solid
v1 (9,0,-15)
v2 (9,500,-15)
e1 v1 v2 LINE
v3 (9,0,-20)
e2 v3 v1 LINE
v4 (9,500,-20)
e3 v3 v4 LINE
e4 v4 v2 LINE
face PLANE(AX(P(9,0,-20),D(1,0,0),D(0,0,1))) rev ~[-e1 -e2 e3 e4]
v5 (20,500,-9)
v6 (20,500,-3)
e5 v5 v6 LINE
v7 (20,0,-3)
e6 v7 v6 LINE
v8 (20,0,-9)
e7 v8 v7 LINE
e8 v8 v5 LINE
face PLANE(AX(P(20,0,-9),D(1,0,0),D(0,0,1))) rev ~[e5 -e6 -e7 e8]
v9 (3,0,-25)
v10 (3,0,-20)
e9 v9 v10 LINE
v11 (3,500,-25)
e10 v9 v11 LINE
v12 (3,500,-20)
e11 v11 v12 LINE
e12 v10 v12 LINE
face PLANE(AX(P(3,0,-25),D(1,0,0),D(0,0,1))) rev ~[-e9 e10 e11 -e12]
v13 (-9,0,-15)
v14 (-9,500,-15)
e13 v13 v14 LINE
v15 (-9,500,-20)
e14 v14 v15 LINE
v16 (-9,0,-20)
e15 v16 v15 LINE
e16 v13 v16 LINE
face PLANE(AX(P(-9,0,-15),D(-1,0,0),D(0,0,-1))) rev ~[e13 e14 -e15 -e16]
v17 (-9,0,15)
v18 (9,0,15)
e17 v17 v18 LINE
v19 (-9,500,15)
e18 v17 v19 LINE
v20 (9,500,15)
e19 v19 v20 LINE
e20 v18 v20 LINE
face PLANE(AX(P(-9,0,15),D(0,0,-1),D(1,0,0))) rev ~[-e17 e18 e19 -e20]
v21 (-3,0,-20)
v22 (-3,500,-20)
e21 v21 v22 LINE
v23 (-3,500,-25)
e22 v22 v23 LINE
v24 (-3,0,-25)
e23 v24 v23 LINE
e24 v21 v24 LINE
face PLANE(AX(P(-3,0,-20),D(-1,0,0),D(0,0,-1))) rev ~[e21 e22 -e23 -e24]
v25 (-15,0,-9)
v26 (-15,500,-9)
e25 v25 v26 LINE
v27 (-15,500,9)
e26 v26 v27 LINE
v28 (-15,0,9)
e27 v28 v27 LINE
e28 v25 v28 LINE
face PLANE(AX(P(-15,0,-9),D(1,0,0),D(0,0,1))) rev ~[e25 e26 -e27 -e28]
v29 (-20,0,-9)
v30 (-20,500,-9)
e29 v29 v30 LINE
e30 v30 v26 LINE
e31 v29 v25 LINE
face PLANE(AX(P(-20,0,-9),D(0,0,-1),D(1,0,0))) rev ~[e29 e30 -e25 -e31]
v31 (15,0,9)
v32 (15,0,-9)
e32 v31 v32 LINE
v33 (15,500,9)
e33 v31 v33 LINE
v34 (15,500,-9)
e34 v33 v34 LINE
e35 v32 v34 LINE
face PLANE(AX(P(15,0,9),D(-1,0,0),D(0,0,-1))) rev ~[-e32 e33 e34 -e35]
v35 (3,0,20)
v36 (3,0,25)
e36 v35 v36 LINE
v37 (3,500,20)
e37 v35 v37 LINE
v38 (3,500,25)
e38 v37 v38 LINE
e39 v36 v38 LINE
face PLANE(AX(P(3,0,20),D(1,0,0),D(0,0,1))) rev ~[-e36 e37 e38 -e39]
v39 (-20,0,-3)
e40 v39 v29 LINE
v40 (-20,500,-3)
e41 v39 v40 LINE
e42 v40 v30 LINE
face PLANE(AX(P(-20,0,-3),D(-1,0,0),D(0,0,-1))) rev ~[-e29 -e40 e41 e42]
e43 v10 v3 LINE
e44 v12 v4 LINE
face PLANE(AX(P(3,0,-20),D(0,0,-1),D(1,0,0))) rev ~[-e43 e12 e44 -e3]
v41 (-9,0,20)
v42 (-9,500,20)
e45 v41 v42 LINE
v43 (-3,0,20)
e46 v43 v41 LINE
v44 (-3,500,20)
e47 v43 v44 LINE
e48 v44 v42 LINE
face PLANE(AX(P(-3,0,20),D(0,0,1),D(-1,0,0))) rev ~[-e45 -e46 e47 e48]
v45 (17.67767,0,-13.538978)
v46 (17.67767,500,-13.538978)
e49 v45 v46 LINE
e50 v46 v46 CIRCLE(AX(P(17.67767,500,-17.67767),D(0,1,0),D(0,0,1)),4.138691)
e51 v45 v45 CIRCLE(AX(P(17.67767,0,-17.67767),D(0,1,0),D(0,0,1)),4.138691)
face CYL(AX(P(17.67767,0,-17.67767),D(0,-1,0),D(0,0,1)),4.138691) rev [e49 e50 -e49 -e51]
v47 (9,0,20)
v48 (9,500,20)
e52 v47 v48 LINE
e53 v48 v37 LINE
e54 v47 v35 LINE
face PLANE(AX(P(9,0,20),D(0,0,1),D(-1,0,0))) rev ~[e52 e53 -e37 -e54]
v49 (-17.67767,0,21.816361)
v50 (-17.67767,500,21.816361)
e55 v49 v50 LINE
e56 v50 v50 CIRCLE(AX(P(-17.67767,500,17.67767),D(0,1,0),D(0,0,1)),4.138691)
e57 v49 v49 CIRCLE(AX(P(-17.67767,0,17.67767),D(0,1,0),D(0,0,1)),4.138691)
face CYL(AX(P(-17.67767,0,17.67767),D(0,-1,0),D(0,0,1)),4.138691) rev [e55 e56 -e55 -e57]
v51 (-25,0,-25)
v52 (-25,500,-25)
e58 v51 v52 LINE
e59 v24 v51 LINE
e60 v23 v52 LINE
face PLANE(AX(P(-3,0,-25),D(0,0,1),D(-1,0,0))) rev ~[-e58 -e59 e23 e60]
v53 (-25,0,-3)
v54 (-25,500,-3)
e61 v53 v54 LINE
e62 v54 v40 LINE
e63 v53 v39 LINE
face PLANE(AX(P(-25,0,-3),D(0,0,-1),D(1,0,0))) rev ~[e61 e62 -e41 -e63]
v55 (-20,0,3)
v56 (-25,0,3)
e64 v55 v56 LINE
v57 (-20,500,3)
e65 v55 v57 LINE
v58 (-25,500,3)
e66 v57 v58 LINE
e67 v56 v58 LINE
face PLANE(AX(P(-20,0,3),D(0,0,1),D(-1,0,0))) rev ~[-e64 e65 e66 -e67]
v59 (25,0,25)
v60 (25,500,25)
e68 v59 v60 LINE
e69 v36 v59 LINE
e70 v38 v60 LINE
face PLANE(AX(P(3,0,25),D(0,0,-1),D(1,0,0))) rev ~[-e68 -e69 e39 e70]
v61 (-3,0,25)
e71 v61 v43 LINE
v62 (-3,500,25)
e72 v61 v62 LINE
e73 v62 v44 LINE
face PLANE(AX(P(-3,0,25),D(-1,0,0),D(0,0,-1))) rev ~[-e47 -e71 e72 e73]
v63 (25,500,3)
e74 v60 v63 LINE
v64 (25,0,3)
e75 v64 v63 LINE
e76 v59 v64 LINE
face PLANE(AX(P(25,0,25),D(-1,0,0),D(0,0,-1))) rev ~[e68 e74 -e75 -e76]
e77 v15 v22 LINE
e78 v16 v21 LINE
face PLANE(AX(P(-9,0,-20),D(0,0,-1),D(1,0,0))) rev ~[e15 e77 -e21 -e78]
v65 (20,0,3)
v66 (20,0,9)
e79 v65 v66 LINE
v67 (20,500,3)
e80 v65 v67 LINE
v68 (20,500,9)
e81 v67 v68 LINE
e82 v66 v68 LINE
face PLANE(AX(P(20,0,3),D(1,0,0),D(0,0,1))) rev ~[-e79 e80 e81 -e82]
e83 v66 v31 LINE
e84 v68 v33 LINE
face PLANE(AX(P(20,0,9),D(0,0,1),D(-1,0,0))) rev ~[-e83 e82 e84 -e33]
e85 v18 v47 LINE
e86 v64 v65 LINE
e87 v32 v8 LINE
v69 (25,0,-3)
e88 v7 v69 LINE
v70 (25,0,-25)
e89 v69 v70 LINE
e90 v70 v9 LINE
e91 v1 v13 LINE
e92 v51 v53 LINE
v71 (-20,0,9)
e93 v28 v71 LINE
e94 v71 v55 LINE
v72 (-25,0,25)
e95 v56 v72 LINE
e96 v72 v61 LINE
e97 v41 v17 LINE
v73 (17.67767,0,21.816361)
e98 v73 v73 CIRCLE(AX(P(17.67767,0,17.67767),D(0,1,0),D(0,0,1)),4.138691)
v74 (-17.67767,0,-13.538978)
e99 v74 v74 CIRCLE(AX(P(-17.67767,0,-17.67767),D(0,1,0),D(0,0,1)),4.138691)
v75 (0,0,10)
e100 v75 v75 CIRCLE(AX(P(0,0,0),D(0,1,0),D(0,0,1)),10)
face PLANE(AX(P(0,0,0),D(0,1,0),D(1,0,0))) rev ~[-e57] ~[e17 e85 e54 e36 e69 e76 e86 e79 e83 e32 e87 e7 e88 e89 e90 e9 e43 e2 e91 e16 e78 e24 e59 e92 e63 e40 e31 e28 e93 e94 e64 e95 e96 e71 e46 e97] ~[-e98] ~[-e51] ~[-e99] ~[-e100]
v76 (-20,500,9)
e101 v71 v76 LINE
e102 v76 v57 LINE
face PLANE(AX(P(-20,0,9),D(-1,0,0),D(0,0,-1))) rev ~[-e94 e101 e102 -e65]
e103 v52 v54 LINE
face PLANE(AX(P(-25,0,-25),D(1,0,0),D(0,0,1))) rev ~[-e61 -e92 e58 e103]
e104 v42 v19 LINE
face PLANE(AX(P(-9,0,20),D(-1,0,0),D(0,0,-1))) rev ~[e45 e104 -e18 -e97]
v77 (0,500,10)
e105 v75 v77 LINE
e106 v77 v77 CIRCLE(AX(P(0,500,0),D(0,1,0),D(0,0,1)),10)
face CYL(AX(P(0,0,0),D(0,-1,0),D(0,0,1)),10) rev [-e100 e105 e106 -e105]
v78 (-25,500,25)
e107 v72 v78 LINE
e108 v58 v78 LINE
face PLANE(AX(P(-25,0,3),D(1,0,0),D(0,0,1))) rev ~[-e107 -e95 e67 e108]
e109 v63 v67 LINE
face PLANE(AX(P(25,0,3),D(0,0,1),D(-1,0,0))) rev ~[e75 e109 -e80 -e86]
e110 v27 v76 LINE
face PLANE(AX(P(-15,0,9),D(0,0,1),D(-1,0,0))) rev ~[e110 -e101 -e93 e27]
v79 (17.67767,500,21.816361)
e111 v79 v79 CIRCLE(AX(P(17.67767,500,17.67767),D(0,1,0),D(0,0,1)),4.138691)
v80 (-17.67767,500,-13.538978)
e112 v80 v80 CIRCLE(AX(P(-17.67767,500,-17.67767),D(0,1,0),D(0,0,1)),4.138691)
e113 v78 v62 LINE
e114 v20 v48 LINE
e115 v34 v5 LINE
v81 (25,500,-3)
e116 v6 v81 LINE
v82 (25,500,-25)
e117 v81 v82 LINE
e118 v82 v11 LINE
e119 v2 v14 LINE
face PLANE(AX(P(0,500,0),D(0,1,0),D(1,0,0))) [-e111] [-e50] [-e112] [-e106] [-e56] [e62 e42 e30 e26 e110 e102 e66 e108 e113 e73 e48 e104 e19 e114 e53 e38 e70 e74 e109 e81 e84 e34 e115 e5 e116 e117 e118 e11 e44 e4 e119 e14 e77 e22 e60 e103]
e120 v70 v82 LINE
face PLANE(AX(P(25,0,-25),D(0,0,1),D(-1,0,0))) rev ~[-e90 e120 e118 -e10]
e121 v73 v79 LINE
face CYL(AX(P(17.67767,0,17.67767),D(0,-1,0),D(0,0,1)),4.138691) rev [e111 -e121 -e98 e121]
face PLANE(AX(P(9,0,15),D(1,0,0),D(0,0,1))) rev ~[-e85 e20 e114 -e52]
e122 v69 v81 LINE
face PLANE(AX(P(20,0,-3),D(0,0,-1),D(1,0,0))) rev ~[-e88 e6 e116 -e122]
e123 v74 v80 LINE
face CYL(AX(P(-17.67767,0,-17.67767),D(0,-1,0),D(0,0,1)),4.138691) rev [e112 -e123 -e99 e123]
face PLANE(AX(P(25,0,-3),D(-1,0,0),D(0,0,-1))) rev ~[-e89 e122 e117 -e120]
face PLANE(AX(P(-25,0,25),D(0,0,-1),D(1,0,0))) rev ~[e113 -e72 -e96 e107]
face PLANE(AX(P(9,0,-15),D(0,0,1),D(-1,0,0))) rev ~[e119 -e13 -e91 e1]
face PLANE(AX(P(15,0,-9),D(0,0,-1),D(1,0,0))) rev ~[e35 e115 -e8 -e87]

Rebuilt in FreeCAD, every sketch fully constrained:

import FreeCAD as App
import Part
import Sketcher
Q = App.Units.Quantity

doc = App.newDocument("Part")
body = doc.addObject("PartDesign::Body", "Body")

# Sketch on XZ plane
sketch1 = doc.addObject("Sketcher::SketchObject", "Sketch")
body.addObject(sketch1)
sketch1.AttachmentSupport = (doc.XZ_Plane, [""])
sketch1.MapMode = "FlatFace"
sketch1.addGeometry(Part.LineSegment(App.Vector(-25, 3, 0), App.Vector(-25, 25, 0)), False)
sketch1.addGeometry(Part.LineSegment(App.Vector(-25, 25, 0), App.Vector(-3, 25, 0)), False)
sketch1.addGeometry(Part.LineSegment(App.Vector(-3, 25, 0), App.Vector(-3, 20, 0)), False)
sketch1.addGeometry(Part.LineSegment(App.Vector(-3, 20, 0), App.Vector(-9, 20, 0)), False)
sketch1.addGeometry(Part.LineSegment(App.Vector(-9, 20, 0), App.Vector(-9, 15, 0)), False)
sketch1.addGeometry(Part.LineSegment(App.Vector(-9, 15, 0), App.Vector(9, 15, 0)), False)
sketch1.addGeometry(Part.LineSegment(App.Vector(9, 15, 0), App.Vector(9, 20, 0)), False)
sketch1.addGeometry(Part.LineSegment(App.Vector(9, 20, 0), App.Vector(3, 20, 0)), False)
sketch1.addGeometry(Part.LineSegment(App.Vector(3, 20, 0), App.Vector(3, 25, 0)), False)
sketch1.addGeometry(Part.LineSegment(App.Vector(3, 25, 0), App.Vector(25, 25, 0)), False)
sketch1.addGeometry(Part.LineSegment(App.Vector(25, 25, 0), App.Vector(25, 3, 0)), False)
sketch1.addGeometry(Part.LineSegment(App.Vector(25, 3, 0), App.Vector(20, 3, 0)), False)
sketch1.addGeometry(Part.LineSegment(App.Vector(20, 3, 0), App.Vector(20, 9, 0)), False)
sketch1.addGeometry(Part.LineSegment(App.Vector(20, 9, 0), App.Vector(15, 9, 0)), False)
sketch1.addGeometry(Part.LineSegment(App.Vector(15, 9, 0), App.Vector(15, -9, 0)), False)
sketch1.addGeometry(Part.LineSegment(App.Vector(15, -9, 0), App.Vector(20, -9, 0)), False)
sketch1.addGeometry(Part.LineSegment(App.Vector(20, -9, 0), App.Vector(20, -3, 0)), False)
sketch1.addGeometry(Part.LineSegment(App.Vector(20, -3, 0), App.Vector(25, -3, 0)), False)
sketch1.addGeometry(Part.LineSegment(App.Vector(25, -3, 0), App.Vector(25, -25, 0)), False)
sketch1.addGeometry(Part.LineSegment(App.Vector(25, -25, 0), App.Vector(3, -25, 0)), False)
sketch1.addGeometry(Part.LineSegment(App.Vector(3, -25, 0), App.Vector(3, -20, 0)), False)
sketch1.addGeometry(Part.LineSegment(App.Vector(3, -20, 0), App.Vector(9, -20, 0)), False)
sketch1.addGeometry(Part.LineSegment(App.Vector(9, -20, 0), App.Vector(9, -15, 0)), False)
sketch1.addGeometry(Part.LineSegment(App.Vector(9, -15, 0), App.Vector(-9, -15, 0)), False)
sketch1.addGeometry(Part.LineSegment(App.Vector(-9, -15, 0), App.Vector(-9, -20, 0)), False)
sketch1.addGeometry(Part.LineSegment(App.Vector(-9, -20, 0), App.Vector(-3, -20, 0)), False)
sketch1.addGeometry(Part.LineSegment(App.Vector(-3, -20, 0), App.Vector(-3, -25, 0)), False)
sketch1.addGeometry(Part.LineSegment(App.Vector(-3, -25, 0), App.Vector(-25, -25, 0)), False)
sketch1.addGeometry(Part.LineSegment(App.Vector(-25, -25, 0), App.Vector(-25, -3, 0)), False)
sketch1.addGeometry(Part.LineSegment(App.Vector(-25, -3, 0), App.Vector(-20, -3, 0)), False)
sketch1.addGeometry(Part.LineSegment(App.Vector(-20, -3, 0), App.Vector(-20, -9, 0)), False)
sketch1.addGeometry(Part.LineSegment(App.Vector(-20, -9, 0), App.Vector(-15, -9, 0)), False)
sketch1.addGeometry(Part.LineSegment(App.Vector(-15, -9, 0), App.Vector(-15, 9, 0)), False)
sketch1.addGeometry(Part.LineSegment(App.Vector(-15, 9, 0), App.Vector(-20, 9, 0)), False)
sketch1.addGeometry(Part.LineSegment(App.Vector(-20, 9, 0), App.Vector(-20, 3, 0)), False)
sketch1.addGeometry(Part.LineSegment(App.Vector(-20, 3, 0), App.Vector(-25, 3, 0)), False)
sketch1.addGeometry(Part.Circle(App.Vector(-17.7, 17.7, 0), App.Vector(0, 0, 1), 4.1), False)
sketch1.addGeometry(Part.Circle(App.Vector(17.7, 17.7, 0), App.Vector(0, 0, 1), 4.1), False)
sketch1.addGeometry(Part.Circle(App.Vector(-17.7, -17.7, 0), App.Vector(0, 0, 1), 4.1), False)
sketch1.addGeometry(Part.Circle(App.Vector(0, 0, 0), App.Vector(0, 0, 1), 10), False)
sketch1.addGeometry(Part.Circle(App.Vector(17.7, -17.7, 0), App.Vector(0, 0, 1), 4.1), False)
sketch1.addConstraint(Sketcher.Constraint("Coincident", 0, 2, 1, 1))
sketch1.addConstraint(Sketcher.Constraint("Coincident", 1, 2, 2, 1))
sketch1.addConstraint(Sketcher.Constraint("Coincident", 2, 2, 3, 1))
sketch1.addConstraint(Sketcher.Constraint("Coincident", 3, 2, 4, 1))
sketch1.addConstraint(Sketcher.Constraint("Coincident", 4, 2, 5, 1))
sketch1.addConstraint(Sketcher.Constraint("Coincident", 5, 2, 6, 1))
sketch1.addConstraint(Sketcher.Constraint("Coincident", 6, 2, 7, 1))
sketch1.addConstraint(Sketcher.Constraint("Coincident", 7, 2, 8, 1))
sketch1.addConstraint(Sketcher.Constraint("Coincident", 8, 2, 9, 1))
sketch1.addConstraint(Sketcher.Constraint("Coincident", 9, 2, 10, 1))
sketch1.addConstraint(Sketcher.Constraint("Coincident", 10, 2, 11, 1))
sketch1.addConstraint(Sketcher.Constraint("Coincident", 11, 2, 12, 1))
sketch1.addConstraint(Sketcher.Constraint("Coincident", 12, 2, 13, 1))
sketch1.addConstraint(Sketcher.Constraint("Coincident", 13, 2, 14, 1))
sketch1.addConstraint(Sketcher.Constraint("Coincident", 14, 2, 15, 1))
sketch1.addConstraint(Sketcher.Constraint("Coincident", 15, 2, 16, 1))
sketch1.addConstraint(Sketcher.Constraint("Coincident", 16, 2, 17, 1))
sketch1.addConstraint(Sketcher.Constraint("Coincident", 17, 2, 18, 1))
sketch1.addConstraint(Sketcher.Constraint("Coincident", 18, 2, 19, 1))
sketch1.addConstraint(Sketcher.Constraint("Coincident", 19, 2, 20, 1))
sketch1.addConstraint(Sketcher.Constraint("Coincident", 20, 2, 21, 1))
sketch1.addConstraint(Sketcher.Constraint("Coincident", 21, 2, 22, 1))
sketch1.addConstraint(Sketcher.Constraint("Coincident", 22, 2, 23, 1))
sketch1.addConstraint(Sketcher.Constraint("Coincident", 23, 2, 24, 1))
sketch1.addConstraint(Sketcher.Constraint("Coincident", 24, 2, 25, 1))
sketch1.addConstraint(Sketcher.Constraint("Coincident", 25, 2, 26, 1))
sketch1.addConstraint(Sketcher.Constraint("Coincident", 26, 2, 27, 1))
sketch1.addConstraint(Sketcher.Constraint("Coincident", 27, 2, 28, 1))
sketch1.addConstraint(Sketcher.Constraint("Coincident", 28, 2, 29, 1))
sketch1.addConstraint(Sketcher.Constraint("Coincident", 29, 2, 30, 1))
sketch1.addConstraint(Sketcher.Constraint("Coincident", 30, 2, 31, 1))
sketch1.addConstraint(Sketcher.Constraint("Coincident", 31, 2, 32, 1))
sketch1.addConstraint(Sketcher.Constraint("Coincident", 32, 2, 33, 1))
sketch1.addConstraint(Sketcher.Constraint("Coincident", 33, 2, 34, 1))
sketch1.addConstraint(Sketcher.Constraint("Coincident", 34, 2, 35, 1))
sketch1.addConstraint(Sketcher.Constraint("Coincident", 35, 2, 0, 1))
sketch1.addConstraint(Sketcher.Constraint("Vertical", 0))
sketch1.addConstraint(Sketcher.Constraint("Horizontal", 1))
sketch1.addConstraint(Sketcher.Constraint("Vertical", 2))
sketch1.addConstraint(Sketcher.Constraint("Horizontal", 3))
sketch1.addConstraint(Sketcher.Constraint("Vertical", 4))
sketch1.addConstraint(Sketcher.Constraint("Horizontal", 5))
sketch1.addConstraint(Sketcher.Constraint("Vertical", 6))
sketch1.addConstraint(Sketcher.Constraint("Horizontal", 7))
sketch1.addConstraint(Sketcher.Constraint("Vertical", 8))
sketch1.addConstraint(Sketcher.Constraint("Horizontal", 9))
sketch1.addConstraint(Sketcher.Constraint("Vertical", 10))
sketch1.addConstraint(Sketcher.Constraint("Horizontal", 11))
sketch1.addConstraint(Sketcher.Constraint("Vertical", 12))
sketch1.addConstraint(Sketcher.Constraint("Horizontal", 13))
sketch1.addConstraint(Sketcher.Constraint("Vertical", 14))
sketch1.addConstraint(Sketcher.Constraint("Horizontal", 15))
sketch1.addConstraint(Sketcher.Constraint("Vertical", 16))
sketch1.addConstraint(Sketcher.Constraint("Horizontal", 17))
sketch1.addConstraint(Sketcher.Constraint("Vertical", 18))
sketch1.addConstraint(Sketcher.Constraint("Horizontal", 19))
sketch1.addConstraint(Sketcher.Constraint("Vertical", 20))
sketch1.addConstraint(Sketcher.Constraint("Horizontal", 21))
sketch1.addConstraint(Sketcher.Constraint("Vertical", 22))
sketch1.addConstraint(Sketcher.Constraint("Horizontal", 23))
sketch1.addConstraint(Sketcher.Constraint("Vertical", 24))
sketch1.addConstraint(Sketcher.Constraint("Horizontal", 25))
sketch1.addConstraint(Sketcher.Constraint("Vertical", 26))
sketch1.addConstraint(Sketcher.Constraint("Horizontal", 27))
sketch1.addConstraint(Sketcher.Constraint("Vertical", 28))
sketch1.addConstraint(Sketcher.Constraint("Horizontal", 29))
sketch1.addConstraint(Sketcher.Constraint("Vertical", 30))
sketch1.addConstraint(Sketcher.Constraint("Horizontal", 31))
sketch1.addConstraint(Sketcher.Constraint("Vertical", 32))
sketch1.addConstraint(Sketcher.Constraint("Horizontal", 33))
sketch1.addConstraint(Sketcher.Constraint("Vertical", 34))
sketch1.addConstraint(Sketcher.Constraint("Horizontal", 35))
sketch1.addConstraint(Sketcher.Constraint("Coincident", 39, 3, -1, 1))
sketch1.addConstraint(Sketcher.Constraint("Equal", 36, 37))
sketch1.addConstraint(Sketcher.Constraint("Equal", 37, 38))
sketch1.addConstraint(Sketcher.Constraint("Equal", 38, 40))
sketch1.addConstraint(Sketcher.Constraint("Symmetric", 37, 3, 38, 3, -1, 1))
sketch1.addConstraint(Sketcher.Constraint("Symmetric", 36, 3, 40, 3, -1, 1))
sketch1.addConstraint(Sketcher.Constraint("Symmetric", 0, 2, 18, 2, -1, 1))
sketch1.addConstraint(Sketcher.Constraint("Symmetric", 2, 2, 20, 2, -1, 1))
sketch1.addConstraint(Sketcher.Constraint("Symmetric", 4, 2, 22, 2, -1, 1))
sketch1.addConstraint(Sketcher.Constraint("Symmetric", 6, 2, 24, 2, -1, 1))
sketch1.addConstraint(Sketcher.Constraint("Symmetric", 8, 2, 26, 2, -1, 1))
sketch1.addConstraint(Sketcher.Constraint("Symmetric", 10, 2, 28, 2, -1, 1))
sketch1.addConstraint(Sketcher.Constraint("Symmetric", 12, 2, 30, 2, -1, 1))
sketch1.addConstraint(Sketcher.Constraint("Symmetric", 14, 2, 32, 2, -1, 1))
sketch1.addConstraint(Sketcher.Constraint("Symmetric", 16, 2, 34, 2, -1, 1))
sketch1.addConstraint(Sketcher.Constraint("Symmetric", 36, 3, 37, 3, -2))
sketch1.addConstraint(Sketcher.Constraint("Symmetric", 3, 2, 6, 2, -2))
sketch1.addConstraint(Sketcher.Constraint("Symmetric", 1, 2, 8, 2, -2))
sketch1.addConstraint(Sketcher.Constraint("Symmetric", 17, 2, 28, 2, -2))
sketch1.addConstraint(Sketcher.Constraint("Symmetric", 15, 2, 30, 2, -2))
sketch1.addConstraint(Sketcher.Constraint("Equal", 11, 13))
sketch1.addConstraint(Sketcher.Constraint("Equal", 27, 0))
sketch1.addConstraint(Sketcher.Constraint("Equal", 35, 2))
sketch1.addConstraint(Sketcher.Constraint("Equal", 2, 4))
sketch1.addConstraint(Sketcher.Constraint("Equal", 25, 12))
sketch1.addConstraint(Sketcher.Constraint("Equal", 23, 14))
sketch1.addConstraint(Sketcher.Constraint("Diameter", 39, Q("20 mm")))
sketch1.addConstraint(Sketcher.Constraint("DistanceX", 1, 1, 1, 2, Q("22 mm")))
sketch1.addConstraint(Sketcher.Constraint("DistanceX", 3, 2, 3, 1, Q("6 mm")))
sketch1.addConstraint(Sketcher.Constraint("DistanceX", 5, 1, 5, 2, Q("18 mm")))
sketch1.addConstraint(Sketcher.Constraint("DistanceX", 11, 2, 11, 1, Q("5 mm")))
sketch1.addConstraint(Sketcher.Constraint("Diameter", 36, Q("8.277382 mm")))
sketch1.addConstraint(Sketcher.Constraint("DistanceX", 36, 3, -1, 1, Q("17.67767 mm")))
sketch1.addConstraint(Sketcher.Constraint("DistanceY", -1, 1, 36, 3, Q("17.67767 mm")))
pad1 = doc.addObject("PartDesign::Pad", "Pad")
body.addObject(pad1)
pad1.Profile = sketch1
pad1.Length = 500
pad1.Reversed = True

doc.recompute()
